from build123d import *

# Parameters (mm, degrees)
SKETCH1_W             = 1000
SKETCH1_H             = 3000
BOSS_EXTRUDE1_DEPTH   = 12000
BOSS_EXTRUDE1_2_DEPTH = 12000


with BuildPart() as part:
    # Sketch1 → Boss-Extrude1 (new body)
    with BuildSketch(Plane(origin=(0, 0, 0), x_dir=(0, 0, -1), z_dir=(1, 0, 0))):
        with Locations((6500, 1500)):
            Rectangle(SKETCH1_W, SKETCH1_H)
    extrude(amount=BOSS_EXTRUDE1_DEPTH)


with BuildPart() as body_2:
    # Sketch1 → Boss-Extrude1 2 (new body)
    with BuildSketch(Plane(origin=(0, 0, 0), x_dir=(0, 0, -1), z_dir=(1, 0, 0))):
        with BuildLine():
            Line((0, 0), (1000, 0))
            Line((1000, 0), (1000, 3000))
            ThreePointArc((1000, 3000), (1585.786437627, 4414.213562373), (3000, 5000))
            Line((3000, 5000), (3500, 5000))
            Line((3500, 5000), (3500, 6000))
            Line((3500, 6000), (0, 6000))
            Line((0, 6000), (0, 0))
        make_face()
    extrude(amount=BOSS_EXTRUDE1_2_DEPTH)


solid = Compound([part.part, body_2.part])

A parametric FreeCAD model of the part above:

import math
import FreeCAD as App
import Part
import Sketcher

V = App.Vector

doc = App.newDocument("Part")
body = doc.addObject("PartDesign::Body", "Body")

sketch1 = body.newObject("Sketcher::SketchObject", "Sketch")
sketch1.AttachmentSupport = (doc.getObject("YZ_Plane"), [""])
sketch1.MapMode = "FlatFace"
sketch1.addGeometry(Part.LineSegment(V(3000, -6000, 0), V(0, -6000, 0)), False)
sketch1.addGeometry(Part.LineSegment(V(0, -6000, 0), V(0, -7000, 0)), False)
sketch1.addGeometry(Part.LineSegment(V(0, -7000, 0), V(3000, -7000, 0)), False)
sketch1.addGeometry(Part.LineSegment(V(3000, -7000, 0), V(3000, -6000, 0)), False)
sketch1.addConstraint(Sketcher.Constraint("Coincident", 0, 2, 1, 1))
sketch1.addConstraint(Sketcher.Constraint("Coincident", 1, 2, 2, 1))
sketch1.addConstraint(Sketcher.Constraint("Coincident", 2, 2, 3, 1))
sketch1.addConstraint(Sketcher.Constraint("Coincident", 3, 2, 0, 1))
sketch1.addConstraint(Sketcher.Constraint("Horizontal", 0))
sketch1.addConstraint(Sketcher.Constraint("Vertical", 1))
sketch1.addConstraint(Sketcher.Constraint("Horizontal", 2))
sketch1.addConstraint(Sketcher.Constraint("Vertical", 3))
sketch1.addConstraint(Sketcher.Constraint("PointOnObject", 0, 2, -2))
sketch1.addConstraint(Sketcher.Constraint("DistanceX", 0, 2, 0, 1, 3000.0))
sketch1.addConstraint(Sketcher.Constraint("DistanceY", 1, 2, 1, 1, 1000.0))
sketch1.addConstraint(Sketcher.Constraint("DistanceY", 0, 2, -1, 1, 6000.0))
pad1 = body.newObject("PartDesign::Pad", "Pad")
pad1.Profile = sketch1
pad1.Length = 12000
body2 = doc.addObject("PartDesign::Body", "Body001")

sketch2 = body2.newObject("Sketcher::SketchObject", "Sketch001")
sketch2.AttachmentSupport = (doc.getObject("YZ_Plane001"), [""])
sketch2.MapMode = "FlatFace"
sketch2.addGeometry(Part.LineSegment(V(0, 0, 0), V(0, -1000, 0)), False)
sketch2.addGeometry(Part.LineSegment(V(0, -1000, 0), V(3000, -1000, 0)), False)
sketch2.addGeometry(Part.ArcOfCircle(Part.Circle(V(3000, -3000, 0), V(0, 0, 1), 2000), math.radians(0), math.radians(90)), False)
sketch2.addGeometry(Part.LineSegment(V(5000, -3000, 0), V(5000, -3500, 0)), False)
sketch2.addGeometry(Part.LineSegment(V(5000, -3500, 0), V(6000, -3500, 0)), False)
sketch2.addGeometry(Part.LineSegment(V(6000, -3500, 0), V(6000, 0, 0)), False)
sketch2.addGeometry(Part.LineSegment(V(6000, 0, 0), V(0, 0, 0)), False)
sketch2.addConstraint(Sketcher.Constraint("Coincident", 0, 2, 1, 1))
sketch2.addConstraint(Sketcher.Constraint("Coincident", 1, 2, 2, 2))
sketch2.addConstraint(Sketcher.Constraint("Tangent", 2, 1, 3, 1))
sketch2.addConstraint(Sketcher.Constraint("Coincident", 3, 2, 4, 1))
sketch2.addConstraint(Sketcher.Constraint("Coincident", 4, 2, 5, 1))
sketch2.addConstraint(Sketcher.Constraint("Coincident", 5, 2, 6, 1))
sketch2.addConstraint(Sketcher.Constraint("Coincident", 6, 2, 0, 1))
sketch2.addConstraint(Sketcher.Constraint("Vertical", 0))
sketch2.addConstraint(Sketcher.Constraint("Horizontal", 1))
sketch2.addConstraint(Sketcher.Constraint("Vertical", 3))
sketch2.addConstraint(Sketcher.Constraint("Horizontal", 4))
sketch2.addConstraint(Sketcher.Constraint("Vertical", 5))
sketch2.addConstraint(Sketcher.Constraint("Horizontal", 6))
sketch2.addConstraint(Sketcher.Constraint("Coincident", 6, 2, -1, 1))
sketch2.addConstraint(Sketcher.Constraint("Vertical", 2, 3, 1, 2))
sketch2.addConstraint(Sketcher.Constraint("Equal", 4, 0))
sketch2.addConstraint(Sketcher.Constraint("Radius", 2, 2000.0))
sketch2.addConstraint(Sketcher.Constraint("DistanceX", 1, 1, 1, 2, 3000.0))
sketch2.addConstraint(Sketcher.Constraint("DistanceX", 4, 1, 4, 2, 1000.0))
sketch2.addConstraint(Sketcher.Constraint("DistanceY", 3, 2, 3, 1, 500.0))
pad2 = body2.newObject("PartDesign::Pad", "Pad001")
pad2.Profile = sketch2
pad2.Length = 12000

doc.recompute()
